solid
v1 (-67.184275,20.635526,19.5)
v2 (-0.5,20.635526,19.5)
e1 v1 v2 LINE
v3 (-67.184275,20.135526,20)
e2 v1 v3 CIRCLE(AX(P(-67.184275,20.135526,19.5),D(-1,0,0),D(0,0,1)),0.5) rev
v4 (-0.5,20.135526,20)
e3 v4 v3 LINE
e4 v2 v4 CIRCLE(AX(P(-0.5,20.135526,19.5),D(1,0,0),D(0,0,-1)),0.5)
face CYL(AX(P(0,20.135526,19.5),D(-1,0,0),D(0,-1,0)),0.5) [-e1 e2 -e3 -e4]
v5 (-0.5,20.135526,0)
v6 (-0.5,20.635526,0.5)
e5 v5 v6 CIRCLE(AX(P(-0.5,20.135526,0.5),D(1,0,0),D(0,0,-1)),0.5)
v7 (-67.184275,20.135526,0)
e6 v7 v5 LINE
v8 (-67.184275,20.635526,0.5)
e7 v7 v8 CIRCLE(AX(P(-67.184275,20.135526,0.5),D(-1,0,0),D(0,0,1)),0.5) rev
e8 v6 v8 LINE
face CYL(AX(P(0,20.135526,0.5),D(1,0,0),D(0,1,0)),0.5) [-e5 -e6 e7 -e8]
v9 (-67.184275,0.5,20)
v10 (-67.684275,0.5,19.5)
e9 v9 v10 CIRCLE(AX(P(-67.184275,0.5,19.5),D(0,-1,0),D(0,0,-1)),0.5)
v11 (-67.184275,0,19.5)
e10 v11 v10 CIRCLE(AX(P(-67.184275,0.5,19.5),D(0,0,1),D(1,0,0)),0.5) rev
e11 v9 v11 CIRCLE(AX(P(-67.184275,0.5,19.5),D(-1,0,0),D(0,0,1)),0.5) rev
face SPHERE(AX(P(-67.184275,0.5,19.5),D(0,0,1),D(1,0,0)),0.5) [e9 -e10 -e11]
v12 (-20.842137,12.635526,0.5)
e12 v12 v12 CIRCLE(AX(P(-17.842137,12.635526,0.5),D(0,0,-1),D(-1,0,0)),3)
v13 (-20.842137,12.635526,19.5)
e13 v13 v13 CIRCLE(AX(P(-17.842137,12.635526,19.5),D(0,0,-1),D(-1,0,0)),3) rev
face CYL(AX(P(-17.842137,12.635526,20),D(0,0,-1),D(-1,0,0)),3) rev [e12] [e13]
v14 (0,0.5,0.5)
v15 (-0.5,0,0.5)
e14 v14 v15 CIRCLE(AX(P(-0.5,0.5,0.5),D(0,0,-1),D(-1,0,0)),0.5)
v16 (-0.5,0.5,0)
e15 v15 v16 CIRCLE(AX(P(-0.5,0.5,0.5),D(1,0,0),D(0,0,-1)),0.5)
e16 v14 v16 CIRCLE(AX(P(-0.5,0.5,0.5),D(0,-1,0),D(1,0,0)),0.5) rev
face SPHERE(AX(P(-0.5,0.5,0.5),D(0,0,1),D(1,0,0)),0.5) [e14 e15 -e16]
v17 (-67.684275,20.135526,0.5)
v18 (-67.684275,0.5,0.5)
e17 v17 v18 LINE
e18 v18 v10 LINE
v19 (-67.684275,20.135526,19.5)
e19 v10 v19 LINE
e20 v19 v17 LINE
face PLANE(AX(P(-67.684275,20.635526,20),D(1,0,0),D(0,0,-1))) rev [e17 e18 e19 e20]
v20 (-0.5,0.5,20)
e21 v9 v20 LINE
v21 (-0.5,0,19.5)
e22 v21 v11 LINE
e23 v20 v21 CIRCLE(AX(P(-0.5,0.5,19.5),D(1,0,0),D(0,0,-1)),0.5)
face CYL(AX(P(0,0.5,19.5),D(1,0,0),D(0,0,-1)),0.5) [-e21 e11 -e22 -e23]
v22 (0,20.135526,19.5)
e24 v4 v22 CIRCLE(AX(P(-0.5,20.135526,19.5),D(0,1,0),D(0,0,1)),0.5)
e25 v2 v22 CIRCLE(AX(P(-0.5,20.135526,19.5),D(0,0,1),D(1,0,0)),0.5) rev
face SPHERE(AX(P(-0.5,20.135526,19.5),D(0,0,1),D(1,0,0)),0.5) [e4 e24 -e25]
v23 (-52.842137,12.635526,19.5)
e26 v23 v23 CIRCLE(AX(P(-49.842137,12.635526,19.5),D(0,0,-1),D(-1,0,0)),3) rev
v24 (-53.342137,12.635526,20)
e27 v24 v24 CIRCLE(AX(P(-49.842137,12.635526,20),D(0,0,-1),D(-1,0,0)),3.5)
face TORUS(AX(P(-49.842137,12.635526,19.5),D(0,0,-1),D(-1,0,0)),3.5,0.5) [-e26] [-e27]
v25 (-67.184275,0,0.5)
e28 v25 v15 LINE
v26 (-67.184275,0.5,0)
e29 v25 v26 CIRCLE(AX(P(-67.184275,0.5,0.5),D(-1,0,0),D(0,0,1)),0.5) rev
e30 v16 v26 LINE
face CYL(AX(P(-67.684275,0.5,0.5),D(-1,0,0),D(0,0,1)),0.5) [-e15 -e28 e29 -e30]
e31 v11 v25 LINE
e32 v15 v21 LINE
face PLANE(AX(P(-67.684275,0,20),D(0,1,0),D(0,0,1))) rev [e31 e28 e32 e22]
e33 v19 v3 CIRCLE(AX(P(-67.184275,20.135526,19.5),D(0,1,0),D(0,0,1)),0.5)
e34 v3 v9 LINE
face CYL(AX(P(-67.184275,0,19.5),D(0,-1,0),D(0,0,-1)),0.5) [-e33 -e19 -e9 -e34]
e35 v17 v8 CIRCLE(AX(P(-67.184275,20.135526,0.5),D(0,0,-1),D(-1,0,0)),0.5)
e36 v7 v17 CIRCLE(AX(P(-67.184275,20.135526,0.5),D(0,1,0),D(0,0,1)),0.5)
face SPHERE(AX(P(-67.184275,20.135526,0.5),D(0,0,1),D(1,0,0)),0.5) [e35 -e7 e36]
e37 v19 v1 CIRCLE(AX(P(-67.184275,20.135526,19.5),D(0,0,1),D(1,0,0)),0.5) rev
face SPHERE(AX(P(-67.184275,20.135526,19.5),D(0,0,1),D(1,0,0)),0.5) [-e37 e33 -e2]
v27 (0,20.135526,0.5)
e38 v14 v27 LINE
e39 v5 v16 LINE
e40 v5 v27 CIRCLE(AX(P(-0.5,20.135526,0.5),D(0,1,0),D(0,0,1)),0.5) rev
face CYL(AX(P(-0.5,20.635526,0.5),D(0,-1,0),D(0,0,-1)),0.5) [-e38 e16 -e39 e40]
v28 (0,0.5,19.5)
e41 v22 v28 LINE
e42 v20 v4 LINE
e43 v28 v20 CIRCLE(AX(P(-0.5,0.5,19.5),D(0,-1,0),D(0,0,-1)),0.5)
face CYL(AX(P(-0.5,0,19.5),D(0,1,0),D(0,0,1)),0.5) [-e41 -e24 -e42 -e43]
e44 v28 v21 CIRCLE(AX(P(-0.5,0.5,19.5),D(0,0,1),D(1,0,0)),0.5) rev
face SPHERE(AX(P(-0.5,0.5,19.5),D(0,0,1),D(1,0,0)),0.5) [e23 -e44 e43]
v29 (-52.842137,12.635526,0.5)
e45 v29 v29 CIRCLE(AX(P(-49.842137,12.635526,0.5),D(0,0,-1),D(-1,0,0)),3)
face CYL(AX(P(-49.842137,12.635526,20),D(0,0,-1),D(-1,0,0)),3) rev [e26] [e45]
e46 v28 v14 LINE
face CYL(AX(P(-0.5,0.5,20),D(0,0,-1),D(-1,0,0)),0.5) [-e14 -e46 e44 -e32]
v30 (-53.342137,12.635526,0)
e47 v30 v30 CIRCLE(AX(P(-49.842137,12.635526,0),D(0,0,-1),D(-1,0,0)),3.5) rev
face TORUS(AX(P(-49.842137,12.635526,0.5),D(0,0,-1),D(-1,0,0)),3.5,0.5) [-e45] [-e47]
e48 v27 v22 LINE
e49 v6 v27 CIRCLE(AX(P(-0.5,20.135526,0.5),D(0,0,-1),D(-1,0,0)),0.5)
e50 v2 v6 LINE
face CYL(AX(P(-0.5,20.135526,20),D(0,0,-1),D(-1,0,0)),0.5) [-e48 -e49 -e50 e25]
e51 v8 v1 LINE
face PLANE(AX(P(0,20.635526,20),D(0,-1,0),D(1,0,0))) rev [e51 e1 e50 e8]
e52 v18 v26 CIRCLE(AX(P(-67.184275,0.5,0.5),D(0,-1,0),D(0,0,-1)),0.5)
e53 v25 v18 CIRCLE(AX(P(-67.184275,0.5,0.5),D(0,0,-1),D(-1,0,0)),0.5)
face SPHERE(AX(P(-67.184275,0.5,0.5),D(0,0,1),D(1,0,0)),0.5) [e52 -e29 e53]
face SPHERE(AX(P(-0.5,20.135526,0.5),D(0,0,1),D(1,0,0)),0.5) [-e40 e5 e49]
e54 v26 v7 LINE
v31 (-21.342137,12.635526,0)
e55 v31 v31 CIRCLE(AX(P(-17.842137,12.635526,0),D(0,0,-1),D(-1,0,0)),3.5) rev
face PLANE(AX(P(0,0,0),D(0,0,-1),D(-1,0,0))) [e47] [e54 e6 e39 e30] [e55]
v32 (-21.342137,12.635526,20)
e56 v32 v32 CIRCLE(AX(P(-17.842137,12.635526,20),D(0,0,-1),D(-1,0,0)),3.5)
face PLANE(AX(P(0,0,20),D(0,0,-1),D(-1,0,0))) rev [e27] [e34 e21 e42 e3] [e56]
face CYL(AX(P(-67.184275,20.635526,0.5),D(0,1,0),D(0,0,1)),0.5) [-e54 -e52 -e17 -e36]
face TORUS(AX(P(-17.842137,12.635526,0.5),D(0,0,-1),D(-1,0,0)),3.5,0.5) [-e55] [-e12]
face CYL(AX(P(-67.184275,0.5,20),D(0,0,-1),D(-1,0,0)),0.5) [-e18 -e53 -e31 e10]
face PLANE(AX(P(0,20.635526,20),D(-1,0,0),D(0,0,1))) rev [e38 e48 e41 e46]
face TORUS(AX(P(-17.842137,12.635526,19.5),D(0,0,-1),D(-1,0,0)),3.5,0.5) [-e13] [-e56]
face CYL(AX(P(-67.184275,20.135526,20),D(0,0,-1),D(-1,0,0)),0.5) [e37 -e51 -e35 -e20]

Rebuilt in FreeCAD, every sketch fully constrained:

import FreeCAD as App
import Part
import Sketcher

V = App.Vector
Q = App.Units.Quantity

doc = App.newDocument("Part")
body = doc.addObject("PartDesign::Body", "Body")

sketch1 = body.newObject("Sketcher::SketchObject", "Sketch")
sketch1.AttachmentSupport = (doc.getObject("XY_Plane"), [""])
sketch1.MapMode = "FlatFace"
sketch1.addGeometry([
    Part.LineSegment(V(-67.7, 20.6, 0), V(-67.7, 0, 0)),
    Part.LineSegment(V(-67.7, 0, 0), V(0, 0, 0)),
    Part.LineSegment(V(0, 0, 0), V(0, 20.6, 0)),
    Part.LineSegment(V(0, 20.6, 0), V(-67.7, 20.6, 0)),
    Part.Circle(V(-49.8, 12.6, 0), V(0, 0, 1), 3),
    Part.Circle(V(-17.8, 12.6, 0), V(0, 0, 1), 3),
], False)
sketch1.addConstraint([
    Sketcher.Constraint("Coincident", 0, 2, 1, 1),
    Sketcher.Constraint("Coincident", 1, 2, 2, 1),
    Sketcher.Constraint("Coincident", 2, 2, 3, 1),
    Sketcher.Constraint("Coincident", 3, 2, 0, 1),
    Sketcher.Constraint("Vertical", 0),
    Sketcher.Constraint("Horizontal", 1),
    Sketcher.Constraint("Vertical", 2),
    Sketcher.Constraint("Horizontal", 3),
    Sketcher.Constraint("Coincident", 1, 2, -1, 1),
    Sketcher.Constraint("Equal", 4, 5),
    Sketcher.Constraint("Horizontal", 4, 3, 5, 3),
    Sketcher.Constraint("Diameter", 4, Q("6 mm")),
    Sketcher.Constraint("DistanceX", 4, 3, 5, 3, Q("32 mm")),
    Sketcher.Constraint("DistanceY", 5, 3, 2, 2, Q("8 mm")),
    Sketcher.Constraint("DistanceX", 1, 1, 1, 2, Q("67.684275 mm")),
    Sketcher.Constraint("DistanceY", 0, 2, 0, 1, Q("20.635526 mm")),
    Sketcher.Constraint("DistanceX", 4, 3, -1, 1, Q("49.842137 mm")),
])
pad1 = body.newObject("PartDesign::Pad", "Pad")
pad1.Profile = sketch1
pad1.Length = 20
doc.recompute()

fillet = body.newObject("PartDesign::Fillet", "Fillet")
fillet.Base = (pad1, ["Edge1"])
fillet.UseAllEdges = True
fillet.Radius = 0.5

doc.recompute()
